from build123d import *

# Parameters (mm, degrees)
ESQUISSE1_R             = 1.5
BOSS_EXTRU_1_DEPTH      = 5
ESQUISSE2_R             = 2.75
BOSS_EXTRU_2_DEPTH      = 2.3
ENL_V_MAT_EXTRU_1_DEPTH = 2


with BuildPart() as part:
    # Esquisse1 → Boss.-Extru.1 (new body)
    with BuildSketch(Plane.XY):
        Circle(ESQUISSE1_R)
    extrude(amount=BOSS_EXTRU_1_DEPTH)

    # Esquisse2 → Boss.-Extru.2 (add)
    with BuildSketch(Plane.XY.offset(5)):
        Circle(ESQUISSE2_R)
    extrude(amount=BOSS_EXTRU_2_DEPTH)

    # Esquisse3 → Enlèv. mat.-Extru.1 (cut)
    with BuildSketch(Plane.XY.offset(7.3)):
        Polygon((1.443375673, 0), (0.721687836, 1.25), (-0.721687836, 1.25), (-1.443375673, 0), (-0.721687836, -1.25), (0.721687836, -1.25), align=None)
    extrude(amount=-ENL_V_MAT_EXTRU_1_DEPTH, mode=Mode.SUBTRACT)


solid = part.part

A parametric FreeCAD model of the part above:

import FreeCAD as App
import Part
import Sketcher
Q = App.Units.Quantity

doc = App.newDocument("Part")
body = doc.addObject("PartDesign::Body", "Body")

# Sketch on XY plane
sketch1 = doc.addObject("Sketcher::SketchObject", "Sketch")
body.addObject(sketch1)
sketch1.AttachmentSupport = (doc.XY_Plane, [""])
sketch1.MapMode = "FlatFace"
sketch1.addGeometry(Part.Circle(App.Vector(0, 0, 0), App.Vector(0, 0, 1), 1.5), False)
sketch1.addConstraint([
    Sketcher.Constraint("Coincident", 0, 3, -1, 1),
    Sketcher.Constraint("Diameter", 0, Q("3 mm")),
])
pad1 = doc.addObject("PartDesign::Pad", "Pad")
body.addObject(pad1)
pad1.Profile = sketch1
pad1.Length = 5

# Sketch on XY plane
sketch2 = doc.addObject("Sketcher::SketchObject", "Sketch001")
body.addObject(sketch2)
sketch2.AttachmentSupport = (doc.XY_Plane, [""])
sketch2.MapMode = "FlatFace"
sketch2.AttachmentOffset = App.Placement(App.Vector(0, 0, 5), App.Rotation())
sketch2.addGeometry(Part.Circle(App.Vector(0, 0, 0), App.Vector(0, 0, 1), 2.8), False)
sketch2.addConstraint([
    Sketcher.Constraint("Coincident", 0, 3, -1, 1),
    Sketcher.Constraint("Diameter", 0, Q("5.5 mm")),
])
pad2 = doc.addObject("PartDesign::Pad", "Pad001")
body.addObject(pad2)
pad2.Profile = sketch2
pad2.Length = 2.3

# Sketch on XY plane
sketch3 = doc.addObject("Sketcher::SketchObject", "Sketch002")
body.addObject(sketch3)
sketch3.AttachmentSupport = (doc.XY_Plane, [""])
sketch3.MapMode = "FlatFace"
sketch3.AttachmentOffset = App.Placement(App.Vector(0, 0, 7.3), App.Rotation())
sketch3.addGeometry([
    Part.LineSegment(App.Vector(1.4, 0, 0), App.Vector(0.7, 1.2, 0)),  # 0
    Part.LineSegment(App.Vector(0.7, 1.2, 0), App.Vector(-0.7, 1.2, 0)),  # 1
    Part.LineSegment(App.Vector(-0.7, 1.2, 0), App.Vector(-1.4, 0, 0)),  # 2
    Part.LineSegment(App.Vector(-1.4, 0, 0), App.Vector(-0.7, -1.2, 0)),  # 3
    Part.LineSegment(App.Vector(-0.7, -1.2, 0), App.Vector(0.7, -1.2, 0)),  # 4
    Part.LineSegment(App.Vector(0.7, -1.2, 0), App.Vector(1.4, 0, 0)),  # 5
], False)
sketch3.addConstraint([
    Sketcher.Constraint("Coincident", 0, 2, 1, 1),
    Sketcher.Constraint("Coincident", 1, 2, 2, 1),
    Sketcher.Constraint("Coincident", 2, 2, 3, 1),
    Sketcher.Constraint("Coincident", 3, 2, 4, 1),
    Sketcher.Constraint("Coincident", 4, 2, 5, 1),
    Sketcher.Constraint("Coincident", 5, 2, 0, 1),
    Sketcher.Constraint("Horizontal", 1),
    Sketcher.Constraint("Horizontal", 4),
    Sketcher.Constraint("Symmetric", 0, 2, 3, 2, -1, 1),
    Sketcher.Constraint("Symmetric", 2, 2, 5, 2, -1, 1),
    Sketcher.Constraint("PointOnObject", 2, 2, -1),
    Sketcher.Constraint("Parallel", 2, 5),
    Sketcher.Constraint("Vertical", 1, 2, 3, 2),
    Sketcher.Constraint("Angle", 0, Q("120 deg")),
    Sketcher.Constraint("DistanceY", 3, 2, 1, 2, Q("2.5 mm")),
    Sketcher.Constraint("DistanceX", 1, 2, 1, 1, Q("1.443376 mm")),
])
pocket1 = doc.addObject("PartDesign::Pocket", "Pocket")
body.addObject(pocket1)
pocket1.Profile = sketch3
pocket1.Length = 2

doc.recompute()
